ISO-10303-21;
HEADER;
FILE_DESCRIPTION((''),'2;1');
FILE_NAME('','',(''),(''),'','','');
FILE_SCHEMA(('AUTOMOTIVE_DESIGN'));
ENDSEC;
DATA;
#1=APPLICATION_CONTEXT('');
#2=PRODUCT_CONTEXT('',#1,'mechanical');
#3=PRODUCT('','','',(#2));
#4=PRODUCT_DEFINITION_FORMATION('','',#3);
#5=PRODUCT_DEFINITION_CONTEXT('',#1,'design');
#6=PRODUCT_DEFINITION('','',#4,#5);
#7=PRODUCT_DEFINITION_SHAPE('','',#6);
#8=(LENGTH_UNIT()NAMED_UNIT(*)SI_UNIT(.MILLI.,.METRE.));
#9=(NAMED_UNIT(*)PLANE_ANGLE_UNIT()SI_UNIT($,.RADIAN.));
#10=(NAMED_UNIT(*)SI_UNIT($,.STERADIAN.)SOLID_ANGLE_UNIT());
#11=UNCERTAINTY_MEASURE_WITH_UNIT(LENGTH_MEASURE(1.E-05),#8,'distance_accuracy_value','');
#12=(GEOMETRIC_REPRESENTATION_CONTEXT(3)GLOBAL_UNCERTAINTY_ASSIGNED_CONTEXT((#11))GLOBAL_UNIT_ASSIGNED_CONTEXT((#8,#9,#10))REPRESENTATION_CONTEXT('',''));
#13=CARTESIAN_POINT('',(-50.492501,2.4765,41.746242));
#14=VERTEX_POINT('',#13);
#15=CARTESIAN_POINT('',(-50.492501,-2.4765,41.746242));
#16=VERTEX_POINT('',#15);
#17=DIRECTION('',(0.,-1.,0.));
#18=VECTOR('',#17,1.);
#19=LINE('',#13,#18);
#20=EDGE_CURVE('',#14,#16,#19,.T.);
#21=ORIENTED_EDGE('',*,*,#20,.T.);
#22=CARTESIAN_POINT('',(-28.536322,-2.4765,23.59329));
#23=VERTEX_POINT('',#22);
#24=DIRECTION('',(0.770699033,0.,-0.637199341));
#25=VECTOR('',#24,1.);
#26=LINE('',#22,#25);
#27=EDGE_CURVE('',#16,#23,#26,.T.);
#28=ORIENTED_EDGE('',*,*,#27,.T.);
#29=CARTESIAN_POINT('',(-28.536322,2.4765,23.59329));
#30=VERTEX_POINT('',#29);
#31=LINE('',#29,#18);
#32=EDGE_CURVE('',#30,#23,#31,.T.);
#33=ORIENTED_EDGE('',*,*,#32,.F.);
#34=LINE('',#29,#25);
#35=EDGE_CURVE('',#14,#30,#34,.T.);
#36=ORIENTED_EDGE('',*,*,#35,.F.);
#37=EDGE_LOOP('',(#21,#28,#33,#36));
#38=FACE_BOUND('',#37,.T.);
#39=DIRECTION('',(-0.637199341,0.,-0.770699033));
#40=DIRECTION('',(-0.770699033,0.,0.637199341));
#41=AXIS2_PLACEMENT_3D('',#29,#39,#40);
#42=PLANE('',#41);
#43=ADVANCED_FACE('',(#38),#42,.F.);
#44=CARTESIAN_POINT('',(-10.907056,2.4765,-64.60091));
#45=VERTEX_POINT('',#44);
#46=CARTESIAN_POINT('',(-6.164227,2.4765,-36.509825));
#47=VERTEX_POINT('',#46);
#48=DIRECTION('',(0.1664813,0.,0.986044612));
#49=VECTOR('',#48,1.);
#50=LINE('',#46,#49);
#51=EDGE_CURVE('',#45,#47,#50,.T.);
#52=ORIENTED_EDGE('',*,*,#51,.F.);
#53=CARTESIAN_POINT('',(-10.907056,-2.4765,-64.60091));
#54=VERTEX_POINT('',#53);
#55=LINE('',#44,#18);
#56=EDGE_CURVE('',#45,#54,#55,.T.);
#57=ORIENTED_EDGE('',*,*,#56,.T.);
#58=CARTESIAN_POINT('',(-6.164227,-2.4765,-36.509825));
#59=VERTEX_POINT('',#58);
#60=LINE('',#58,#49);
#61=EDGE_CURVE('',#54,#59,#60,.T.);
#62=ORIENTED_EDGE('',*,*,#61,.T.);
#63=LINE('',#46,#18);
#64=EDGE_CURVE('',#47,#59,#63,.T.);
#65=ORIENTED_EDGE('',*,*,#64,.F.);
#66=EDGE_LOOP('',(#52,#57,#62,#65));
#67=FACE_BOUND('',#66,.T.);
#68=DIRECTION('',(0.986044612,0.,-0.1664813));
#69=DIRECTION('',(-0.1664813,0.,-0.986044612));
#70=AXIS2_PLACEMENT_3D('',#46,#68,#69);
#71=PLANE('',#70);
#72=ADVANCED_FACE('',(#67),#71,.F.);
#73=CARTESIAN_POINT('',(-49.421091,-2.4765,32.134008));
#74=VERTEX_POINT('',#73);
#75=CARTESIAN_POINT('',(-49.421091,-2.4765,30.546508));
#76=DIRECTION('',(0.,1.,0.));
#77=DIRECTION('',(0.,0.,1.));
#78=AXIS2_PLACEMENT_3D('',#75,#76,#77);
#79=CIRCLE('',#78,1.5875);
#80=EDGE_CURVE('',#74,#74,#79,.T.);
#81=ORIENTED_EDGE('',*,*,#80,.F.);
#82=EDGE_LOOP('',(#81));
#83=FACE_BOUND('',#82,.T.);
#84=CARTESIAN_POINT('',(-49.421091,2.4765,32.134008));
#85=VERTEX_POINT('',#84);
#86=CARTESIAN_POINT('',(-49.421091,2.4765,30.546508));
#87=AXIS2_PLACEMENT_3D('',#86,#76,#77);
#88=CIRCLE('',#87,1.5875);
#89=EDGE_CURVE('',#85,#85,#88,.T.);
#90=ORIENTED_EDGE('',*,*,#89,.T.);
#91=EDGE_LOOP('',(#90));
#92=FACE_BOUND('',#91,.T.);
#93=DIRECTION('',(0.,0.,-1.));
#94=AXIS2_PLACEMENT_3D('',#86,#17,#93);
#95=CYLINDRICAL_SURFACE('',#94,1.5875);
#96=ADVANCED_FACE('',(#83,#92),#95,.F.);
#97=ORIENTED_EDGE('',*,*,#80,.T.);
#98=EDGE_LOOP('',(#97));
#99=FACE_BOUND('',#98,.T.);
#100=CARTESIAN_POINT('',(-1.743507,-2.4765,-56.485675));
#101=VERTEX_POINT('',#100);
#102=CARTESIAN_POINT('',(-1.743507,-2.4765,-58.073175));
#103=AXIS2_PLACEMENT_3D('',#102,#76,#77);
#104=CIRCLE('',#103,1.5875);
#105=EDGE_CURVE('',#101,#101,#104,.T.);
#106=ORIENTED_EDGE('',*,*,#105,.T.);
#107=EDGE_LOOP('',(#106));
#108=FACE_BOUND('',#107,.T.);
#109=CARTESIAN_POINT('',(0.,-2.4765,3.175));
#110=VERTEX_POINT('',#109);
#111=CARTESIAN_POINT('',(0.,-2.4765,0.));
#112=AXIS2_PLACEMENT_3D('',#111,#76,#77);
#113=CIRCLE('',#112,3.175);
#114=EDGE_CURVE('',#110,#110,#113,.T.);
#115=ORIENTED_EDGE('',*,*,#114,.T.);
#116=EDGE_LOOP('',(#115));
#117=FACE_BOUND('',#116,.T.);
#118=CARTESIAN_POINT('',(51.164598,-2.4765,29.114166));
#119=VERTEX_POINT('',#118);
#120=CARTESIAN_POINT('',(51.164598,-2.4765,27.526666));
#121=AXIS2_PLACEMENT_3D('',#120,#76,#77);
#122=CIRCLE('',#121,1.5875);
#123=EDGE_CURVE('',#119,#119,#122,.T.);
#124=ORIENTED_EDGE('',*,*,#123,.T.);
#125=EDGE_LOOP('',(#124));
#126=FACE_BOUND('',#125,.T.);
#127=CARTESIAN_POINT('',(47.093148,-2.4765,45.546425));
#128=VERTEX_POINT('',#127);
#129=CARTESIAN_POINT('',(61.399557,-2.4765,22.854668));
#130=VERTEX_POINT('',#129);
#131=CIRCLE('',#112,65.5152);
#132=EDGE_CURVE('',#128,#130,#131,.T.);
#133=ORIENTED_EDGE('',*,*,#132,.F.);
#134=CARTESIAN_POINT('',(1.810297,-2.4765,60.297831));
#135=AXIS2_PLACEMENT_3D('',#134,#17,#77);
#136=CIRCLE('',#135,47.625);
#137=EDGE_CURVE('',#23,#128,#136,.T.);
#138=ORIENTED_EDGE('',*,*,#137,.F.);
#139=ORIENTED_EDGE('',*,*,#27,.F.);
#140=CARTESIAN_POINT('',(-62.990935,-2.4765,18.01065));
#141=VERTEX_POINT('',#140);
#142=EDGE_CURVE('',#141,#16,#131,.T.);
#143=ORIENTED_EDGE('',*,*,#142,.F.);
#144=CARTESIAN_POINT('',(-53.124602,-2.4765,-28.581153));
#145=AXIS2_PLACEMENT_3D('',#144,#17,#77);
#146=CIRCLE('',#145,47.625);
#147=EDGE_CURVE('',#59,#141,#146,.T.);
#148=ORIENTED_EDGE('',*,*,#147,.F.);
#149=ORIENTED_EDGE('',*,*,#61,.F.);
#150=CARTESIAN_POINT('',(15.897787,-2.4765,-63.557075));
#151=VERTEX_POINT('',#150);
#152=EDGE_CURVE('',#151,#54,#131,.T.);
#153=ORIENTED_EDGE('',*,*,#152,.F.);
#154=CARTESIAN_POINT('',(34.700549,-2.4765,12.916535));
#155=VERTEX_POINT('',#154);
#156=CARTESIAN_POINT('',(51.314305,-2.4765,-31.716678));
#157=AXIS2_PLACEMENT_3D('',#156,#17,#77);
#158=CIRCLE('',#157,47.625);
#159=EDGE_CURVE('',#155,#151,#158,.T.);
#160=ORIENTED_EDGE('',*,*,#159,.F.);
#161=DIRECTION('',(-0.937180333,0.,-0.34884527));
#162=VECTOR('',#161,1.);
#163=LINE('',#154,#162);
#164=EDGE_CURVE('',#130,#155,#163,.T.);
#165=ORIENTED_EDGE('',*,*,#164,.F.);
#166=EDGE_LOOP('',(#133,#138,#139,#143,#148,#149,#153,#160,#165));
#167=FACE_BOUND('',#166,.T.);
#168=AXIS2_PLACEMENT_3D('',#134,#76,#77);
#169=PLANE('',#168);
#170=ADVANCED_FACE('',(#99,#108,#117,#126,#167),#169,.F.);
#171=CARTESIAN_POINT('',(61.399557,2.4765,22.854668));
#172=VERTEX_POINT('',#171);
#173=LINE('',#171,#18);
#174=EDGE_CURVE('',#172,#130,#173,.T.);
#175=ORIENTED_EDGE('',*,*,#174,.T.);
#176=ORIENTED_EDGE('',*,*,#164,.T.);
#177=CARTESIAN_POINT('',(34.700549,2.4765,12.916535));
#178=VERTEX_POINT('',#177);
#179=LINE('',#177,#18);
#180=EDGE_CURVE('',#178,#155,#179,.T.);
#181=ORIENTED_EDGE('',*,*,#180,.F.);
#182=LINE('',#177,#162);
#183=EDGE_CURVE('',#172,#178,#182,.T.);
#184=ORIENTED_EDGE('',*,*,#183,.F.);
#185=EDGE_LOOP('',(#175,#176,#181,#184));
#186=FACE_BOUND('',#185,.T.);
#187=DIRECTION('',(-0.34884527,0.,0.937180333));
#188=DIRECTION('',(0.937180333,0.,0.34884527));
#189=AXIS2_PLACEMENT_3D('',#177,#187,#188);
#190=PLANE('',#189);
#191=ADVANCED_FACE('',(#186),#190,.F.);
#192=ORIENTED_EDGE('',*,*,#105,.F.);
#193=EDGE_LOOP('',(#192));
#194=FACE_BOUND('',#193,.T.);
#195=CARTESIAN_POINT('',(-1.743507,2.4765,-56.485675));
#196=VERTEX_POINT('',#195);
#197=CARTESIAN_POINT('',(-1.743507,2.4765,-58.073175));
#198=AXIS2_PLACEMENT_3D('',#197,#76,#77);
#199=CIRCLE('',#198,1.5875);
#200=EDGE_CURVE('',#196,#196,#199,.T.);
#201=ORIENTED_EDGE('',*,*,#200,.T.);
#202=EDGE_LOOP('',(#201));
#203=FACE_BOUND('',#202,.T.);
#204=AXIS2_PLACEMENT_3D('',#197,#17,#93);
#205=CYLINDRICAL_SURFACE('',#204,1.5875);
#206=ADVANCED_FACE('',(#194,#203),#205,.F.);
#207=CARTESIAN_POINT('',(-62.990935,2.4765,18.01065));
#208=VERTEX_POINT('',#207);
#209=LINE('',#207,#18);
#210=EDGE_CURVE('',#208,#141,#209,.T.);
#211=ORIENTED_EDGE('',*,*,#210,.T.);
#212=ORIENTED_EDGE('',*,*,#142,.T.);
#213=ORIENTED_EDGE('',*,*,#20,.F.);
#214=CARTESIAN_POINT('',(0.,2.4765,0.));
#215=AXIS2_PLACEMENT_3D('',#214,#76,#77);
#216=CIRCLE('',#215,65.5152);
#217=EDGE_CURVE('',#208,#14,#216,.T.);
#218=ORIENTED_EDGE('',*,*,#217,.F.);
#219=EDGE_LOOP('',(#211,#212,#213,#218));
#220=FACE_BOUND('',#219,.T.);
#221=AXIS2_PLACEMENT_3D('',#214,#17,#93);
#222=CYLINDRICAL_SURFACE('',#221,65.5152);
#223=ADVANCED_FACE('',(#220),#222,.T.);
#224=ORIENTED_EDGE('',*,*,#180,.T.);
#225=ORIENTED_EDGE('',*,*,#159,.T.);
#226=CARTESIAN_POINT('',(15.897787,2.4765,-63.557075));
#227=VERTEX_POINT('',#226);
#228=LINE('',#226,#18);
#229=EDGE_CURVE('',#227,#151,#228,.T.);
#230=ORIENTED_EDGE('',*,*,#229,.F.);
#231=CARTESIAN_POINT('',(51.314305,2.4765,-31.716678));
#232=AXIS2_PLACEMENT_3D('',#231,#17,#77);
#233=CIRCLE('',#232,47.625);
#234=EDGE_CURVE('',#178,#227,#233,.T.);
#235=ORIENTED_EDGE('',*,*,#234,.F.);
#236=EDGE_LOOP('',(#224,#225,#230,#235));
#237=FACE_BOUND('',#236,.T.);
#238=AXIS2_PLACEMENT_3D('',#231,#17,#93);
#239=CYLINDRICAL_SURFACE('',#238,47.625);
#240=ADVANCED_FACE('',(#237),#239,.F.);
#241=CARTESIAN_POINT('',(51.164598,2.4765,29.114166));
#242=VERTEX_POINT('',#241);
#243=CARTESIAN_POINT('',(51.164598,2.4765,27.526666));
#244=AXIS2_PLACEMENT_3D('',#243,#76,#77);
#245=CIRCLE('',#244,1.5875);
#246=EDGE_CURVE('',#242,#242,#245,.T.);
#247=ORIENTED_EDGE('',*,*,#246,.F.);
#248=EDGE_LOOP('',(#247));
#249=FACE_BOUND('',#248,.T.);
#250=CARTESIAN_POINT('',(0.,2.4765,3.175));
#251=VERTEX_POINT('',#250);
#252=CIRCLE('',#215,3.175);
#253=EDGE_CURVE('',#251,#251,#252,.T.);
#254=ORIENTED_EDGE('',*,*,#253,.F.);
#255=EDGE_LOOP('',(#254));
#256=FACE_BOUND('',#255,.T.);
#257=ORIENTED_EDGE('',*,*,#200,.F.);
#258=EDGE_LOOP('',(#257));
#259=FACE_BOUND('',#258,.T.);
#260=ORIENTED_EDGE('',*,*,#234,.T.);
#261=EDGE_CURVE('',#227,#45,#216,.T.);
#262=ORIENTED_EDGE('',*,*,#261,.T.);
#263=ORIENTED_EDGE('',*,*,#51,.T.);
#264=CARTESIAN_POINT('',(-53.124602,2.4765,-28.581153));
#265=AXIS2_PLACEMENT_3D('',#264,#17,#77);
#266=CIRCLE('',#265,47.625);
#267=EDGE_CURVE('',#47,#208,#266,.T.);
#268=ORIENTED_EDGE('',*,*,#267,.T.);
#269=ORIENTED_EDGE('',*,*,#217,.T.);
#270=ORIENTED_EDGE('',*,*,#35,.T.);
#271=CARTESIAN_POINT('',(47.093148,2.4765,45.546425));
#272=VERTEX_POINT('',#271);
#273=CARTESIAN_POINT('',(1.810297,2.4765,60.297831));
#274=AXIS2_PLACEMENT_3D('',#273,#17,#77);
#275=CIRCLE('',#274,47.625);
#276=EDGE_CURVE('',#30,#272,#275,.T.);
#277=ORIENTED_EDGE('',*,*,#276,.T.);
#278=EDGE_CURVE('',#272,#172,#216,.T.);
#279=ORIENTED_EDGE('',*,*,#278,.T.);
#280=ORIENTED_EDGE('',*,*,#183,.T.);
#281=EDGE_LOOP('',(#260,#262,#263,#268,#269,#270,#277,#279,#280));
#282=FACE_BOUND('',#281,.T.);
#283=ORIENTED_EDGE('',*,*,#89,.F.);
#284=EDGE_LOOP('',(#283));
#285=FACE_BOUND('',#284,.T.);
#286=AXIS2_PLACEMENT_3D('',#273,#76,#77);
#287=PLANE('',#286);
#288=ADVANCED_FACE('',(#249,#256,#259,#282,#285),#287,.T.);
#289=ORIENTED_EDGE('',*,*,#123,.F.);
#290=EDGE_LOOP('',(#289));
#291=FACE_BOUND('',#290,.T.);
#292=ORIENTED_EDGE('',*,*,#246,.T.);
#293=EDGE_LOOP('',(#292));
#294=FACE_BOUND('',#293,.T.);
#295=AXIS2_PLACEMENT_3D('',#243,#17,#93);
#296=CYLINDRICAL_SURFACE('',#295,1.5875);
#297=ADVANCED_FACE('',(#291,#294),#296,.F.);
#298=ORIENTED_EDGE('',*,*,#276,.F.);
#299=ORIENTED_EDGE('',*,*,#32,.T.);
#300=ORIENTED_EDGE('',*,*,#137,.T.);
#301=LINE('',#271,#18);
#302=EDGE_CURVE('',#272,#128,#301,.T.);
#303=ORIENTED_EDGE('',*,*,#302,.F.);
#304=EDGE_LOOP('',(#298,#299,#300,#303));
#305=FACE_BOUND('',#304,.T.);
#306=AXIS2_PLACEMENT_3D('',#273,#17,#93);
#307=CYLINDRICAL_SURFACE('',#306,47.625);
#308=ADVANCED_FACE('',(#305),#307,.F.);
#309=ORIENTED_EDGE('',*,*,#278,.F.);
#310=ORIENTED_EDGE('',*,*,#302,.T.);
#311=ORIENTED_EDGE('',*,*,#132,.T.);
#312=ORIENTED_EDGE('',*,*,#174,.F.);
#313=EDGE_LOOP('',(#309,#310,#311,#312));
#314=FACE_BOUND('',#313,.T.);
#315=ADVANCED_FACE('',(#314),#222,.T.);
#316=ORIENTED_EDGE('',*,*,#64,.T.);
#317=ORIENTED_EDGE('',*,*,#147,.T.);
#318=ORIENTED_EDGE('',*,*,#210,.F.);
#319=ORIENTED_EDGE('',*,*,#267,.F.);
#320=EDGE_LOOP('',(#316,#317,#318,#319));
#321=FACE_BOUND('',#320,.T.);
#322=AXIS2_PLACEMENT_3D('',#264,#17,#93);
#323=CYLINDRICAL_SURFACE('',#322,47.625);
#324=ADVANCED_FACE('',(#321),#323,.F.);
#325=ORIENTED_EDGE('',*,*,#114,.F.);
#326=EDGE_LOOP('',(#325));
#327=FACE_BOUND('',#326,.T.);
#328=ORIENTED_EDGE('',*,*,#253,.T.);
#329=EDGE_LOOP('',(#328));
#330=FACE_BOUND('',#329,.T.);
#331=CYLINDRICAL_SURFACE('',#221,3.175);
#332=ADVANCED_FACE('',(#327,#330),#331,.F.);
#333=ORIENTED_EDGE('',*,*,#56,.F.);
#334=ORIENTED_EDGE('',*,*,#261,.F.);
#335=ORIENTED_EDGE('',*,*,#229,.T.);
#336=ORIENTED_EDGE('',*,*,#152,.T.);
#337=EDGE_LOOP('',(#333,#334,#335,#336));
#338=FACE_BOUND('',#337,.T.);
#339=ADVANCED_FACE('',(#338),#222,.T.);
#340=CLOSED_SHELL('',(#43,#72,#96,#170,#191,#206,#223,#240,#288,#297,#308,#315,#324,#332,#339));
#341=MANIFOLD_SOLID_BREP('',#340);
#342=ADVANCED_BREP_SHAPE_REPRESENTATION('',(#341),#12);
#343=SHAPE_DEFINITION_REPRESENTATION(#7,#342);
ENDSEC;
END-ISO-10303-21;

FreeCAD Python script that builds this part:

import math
import FreeCAD as App
import Part
import Sketcher
Q = App.Units.Quantity

doc = App.newDocument("Part")
body = doc.addObject("PartDesign::Body", "Body")

sketch1 = body.newObject("Sketcher::SketchObject", "Sketch")
sketch1.AttachmentSupport = (doc.getObject("XZ_Plane"), [""])
sketch1.MapMode = "FlatFace"
sketch1.addGeometry([
    Part.LineSegment(App.Vector(61.399557, 22.854668, 0), App.Vector(34.700549, 12.916535, 0)),
    Part.ArcOfCircle(Part.Circle(App.Vector(51.314305, -31.716678, 0), App.Vector(0, 0, 1), 47.625), math.radians(110.416703), math.radians(221.956388)),
    Part.ArcOfCircle(Part.Circle(App.Vector(0, 0, 0), App.Vector(0, 0, 1), 65.5152), math.radians(-99.583297), math.radians(-75.956529)),
    Part.LineSegment(App.Vector(-10.907056, -64.60091, 0), App.Vector(-6.164227, -36.509825, 0)),
    Part.ArcOfCircle(Part.Circle(App.Vector(-53.124602, -28.581153, 0), App.Vector(0, 0, 1), 47.625), math.radians(-9.583297), math.radians(101.956388)),
    Part.ArcOfCircle(Part.Circle(App.Vector(0, 0, 0), App.Vector(0, 0, 1), 65.5152), math.radians(140.416703), math.radians(164.043471)),
    Part.LineSegment(App.Vector(-50.492501, 41.746242, 0), App.Vector(-28.536322, 23.59329, 0)),
    Part.ArcOfCircle(Part.Circle(App.Vector(1.810297, 60.297831, 0), App.Vector(0, 0, 1), 47.625), math.radians(-129.583297), math.radians(-18.043612)),
    Part.ArcOfCircle(Part.Circle(App.Vector(0, 0, 0), App.Vector(0, 0, 1), 65.5152), math.radians(20.416703), math.radians(44.043471)),
    Part.Circle(App.Vector(51.164598, 27.526666, 0), App.Vector(0, 0, 1), 1.5875),
    Part.Circle(App.Vector(-49.421091, 30.546508, 0), App.Vector(0, 0, 1), 1.5875),
    Part.Circle(App.Vector(0, 0, 0), App.Vector(0, 0, 1), 3.175),
    Part.Circle(App.Vector(-1.743507, -58.073175, 0), App.Vector(0, 0, 1), 1.5875),
], False)
sketch1.addConstraint([
    Sketcher.Constraint("Tangent", 0, 2, 1, 1),
    Sketcher.Constraint("Coincident", 1, 2, 2, 2),
    Sketcher.Constraint("Coincident", 2, 1, 3, 1),
    Sketcher.Constraint("Tangent", 3, 2, 4, 1),
    Sketcher.Constraint("Coincident", 4, 2, 5, 2),
    Sketcher.Constraint("Coincident", 5, 1, 6, 1),
    Sketcher.Constraint("Tangent", 6, 2, 7, 1),
    Sketcher.Constraint("Coincident", 7, 2, 8, 2),
    Sketcher.Constraint("Coincident", 8, 1, 0, 1),
    Sketcher.Constraint("Coincident", 2, 3, -1, 1),
    Sketcher.Constraint("Coincident", 5, 3, -1, 1),
    Sketcher.Constraint("Coincident", 8, 3, -1, 1),
    Sketcher.Constraint("Coincident", 11, 3, -1, 1),
    Sketcher.Constraint("Equal", 1, 4),
    Sketcher.Constraint("Equal", 2, 5),
    Sketcher.Constraint("Equal", 4, 7),
    Sketcher.Constraint("Equal", 5, 8),
    Sketcher.Constraint("Equal", 9, 10),
    Sketcher.Constraint("Equal", 10, 12),
    Sketcher.Constraint("Equal", 0, 3),
    Sketcher.Constraint("Equal", 3, 6),
    Sketcher.Constraint("Diameter", 11, Q("0.25 in")),
    Sketcher.Constraint("Diameter", 9, Q("0.125 in")),
    Sketcher.Constraint("Radius", 1, Q("1.875 in")),
    Sketcher.Constraint("Radius", 2, Q("65.5152 mm")),
    Sketcher.Constraint("DistanceX", 4, 3, -1, 1, Q("53.124602 mm")),
    Sketcher.Constraint("DistanceX", 5, 1, -1, 1, Q("50.492501 mm")),
    Sketcher.Constraint("DistanceX", 4, 3, 7, 3, Q("54.934899 mm")),
    Sketcher.Constraint("DistanceX", 7, 3, 9, 3, Q("49.354301 mm")),
    Sketcher.Constraint("DistanceY", 1, 2, 12, 3, Q("5.4839 mm")),
    Sketcher.Constraint("DistanceX", 0, 2, 7, 2, Q("12.392599 mm")),
    Sketcher.Constraint("DistanceY", 8, 1, 9, 3, Q("4.671999 mm")),
    Sketcher.Constraint("DistanceY", 1, 3, -1, 1, Q("31.716678 mm")),
    Sketcher.Constraint("DistanceY", -1, 1, 7, 3, Q("60.297831 mm")),
    Sketcher.Constraint("DistanceX", 10, 3, -1, 1, Q("49.421091 mm")),
    Sketcher.Constraint("DistanceY", -1, 1, 10, 3, Q("30.546508 mm")),
    Sketcher.Constraint("DistanceY", 2, 1, -1, 1, Q("64.60091 mm")),
    Sketcher.Constraint("DistanceX", 12, 3, 1, 3, Q("53.057812 mm")),
])
pad1 = body.newObject("PartDesign::Pad", "Pad")
pad1.Profile = sketch1
pad1.Length = Q("0.195 in")
pad1.Midplane = True

doc.recompute()
